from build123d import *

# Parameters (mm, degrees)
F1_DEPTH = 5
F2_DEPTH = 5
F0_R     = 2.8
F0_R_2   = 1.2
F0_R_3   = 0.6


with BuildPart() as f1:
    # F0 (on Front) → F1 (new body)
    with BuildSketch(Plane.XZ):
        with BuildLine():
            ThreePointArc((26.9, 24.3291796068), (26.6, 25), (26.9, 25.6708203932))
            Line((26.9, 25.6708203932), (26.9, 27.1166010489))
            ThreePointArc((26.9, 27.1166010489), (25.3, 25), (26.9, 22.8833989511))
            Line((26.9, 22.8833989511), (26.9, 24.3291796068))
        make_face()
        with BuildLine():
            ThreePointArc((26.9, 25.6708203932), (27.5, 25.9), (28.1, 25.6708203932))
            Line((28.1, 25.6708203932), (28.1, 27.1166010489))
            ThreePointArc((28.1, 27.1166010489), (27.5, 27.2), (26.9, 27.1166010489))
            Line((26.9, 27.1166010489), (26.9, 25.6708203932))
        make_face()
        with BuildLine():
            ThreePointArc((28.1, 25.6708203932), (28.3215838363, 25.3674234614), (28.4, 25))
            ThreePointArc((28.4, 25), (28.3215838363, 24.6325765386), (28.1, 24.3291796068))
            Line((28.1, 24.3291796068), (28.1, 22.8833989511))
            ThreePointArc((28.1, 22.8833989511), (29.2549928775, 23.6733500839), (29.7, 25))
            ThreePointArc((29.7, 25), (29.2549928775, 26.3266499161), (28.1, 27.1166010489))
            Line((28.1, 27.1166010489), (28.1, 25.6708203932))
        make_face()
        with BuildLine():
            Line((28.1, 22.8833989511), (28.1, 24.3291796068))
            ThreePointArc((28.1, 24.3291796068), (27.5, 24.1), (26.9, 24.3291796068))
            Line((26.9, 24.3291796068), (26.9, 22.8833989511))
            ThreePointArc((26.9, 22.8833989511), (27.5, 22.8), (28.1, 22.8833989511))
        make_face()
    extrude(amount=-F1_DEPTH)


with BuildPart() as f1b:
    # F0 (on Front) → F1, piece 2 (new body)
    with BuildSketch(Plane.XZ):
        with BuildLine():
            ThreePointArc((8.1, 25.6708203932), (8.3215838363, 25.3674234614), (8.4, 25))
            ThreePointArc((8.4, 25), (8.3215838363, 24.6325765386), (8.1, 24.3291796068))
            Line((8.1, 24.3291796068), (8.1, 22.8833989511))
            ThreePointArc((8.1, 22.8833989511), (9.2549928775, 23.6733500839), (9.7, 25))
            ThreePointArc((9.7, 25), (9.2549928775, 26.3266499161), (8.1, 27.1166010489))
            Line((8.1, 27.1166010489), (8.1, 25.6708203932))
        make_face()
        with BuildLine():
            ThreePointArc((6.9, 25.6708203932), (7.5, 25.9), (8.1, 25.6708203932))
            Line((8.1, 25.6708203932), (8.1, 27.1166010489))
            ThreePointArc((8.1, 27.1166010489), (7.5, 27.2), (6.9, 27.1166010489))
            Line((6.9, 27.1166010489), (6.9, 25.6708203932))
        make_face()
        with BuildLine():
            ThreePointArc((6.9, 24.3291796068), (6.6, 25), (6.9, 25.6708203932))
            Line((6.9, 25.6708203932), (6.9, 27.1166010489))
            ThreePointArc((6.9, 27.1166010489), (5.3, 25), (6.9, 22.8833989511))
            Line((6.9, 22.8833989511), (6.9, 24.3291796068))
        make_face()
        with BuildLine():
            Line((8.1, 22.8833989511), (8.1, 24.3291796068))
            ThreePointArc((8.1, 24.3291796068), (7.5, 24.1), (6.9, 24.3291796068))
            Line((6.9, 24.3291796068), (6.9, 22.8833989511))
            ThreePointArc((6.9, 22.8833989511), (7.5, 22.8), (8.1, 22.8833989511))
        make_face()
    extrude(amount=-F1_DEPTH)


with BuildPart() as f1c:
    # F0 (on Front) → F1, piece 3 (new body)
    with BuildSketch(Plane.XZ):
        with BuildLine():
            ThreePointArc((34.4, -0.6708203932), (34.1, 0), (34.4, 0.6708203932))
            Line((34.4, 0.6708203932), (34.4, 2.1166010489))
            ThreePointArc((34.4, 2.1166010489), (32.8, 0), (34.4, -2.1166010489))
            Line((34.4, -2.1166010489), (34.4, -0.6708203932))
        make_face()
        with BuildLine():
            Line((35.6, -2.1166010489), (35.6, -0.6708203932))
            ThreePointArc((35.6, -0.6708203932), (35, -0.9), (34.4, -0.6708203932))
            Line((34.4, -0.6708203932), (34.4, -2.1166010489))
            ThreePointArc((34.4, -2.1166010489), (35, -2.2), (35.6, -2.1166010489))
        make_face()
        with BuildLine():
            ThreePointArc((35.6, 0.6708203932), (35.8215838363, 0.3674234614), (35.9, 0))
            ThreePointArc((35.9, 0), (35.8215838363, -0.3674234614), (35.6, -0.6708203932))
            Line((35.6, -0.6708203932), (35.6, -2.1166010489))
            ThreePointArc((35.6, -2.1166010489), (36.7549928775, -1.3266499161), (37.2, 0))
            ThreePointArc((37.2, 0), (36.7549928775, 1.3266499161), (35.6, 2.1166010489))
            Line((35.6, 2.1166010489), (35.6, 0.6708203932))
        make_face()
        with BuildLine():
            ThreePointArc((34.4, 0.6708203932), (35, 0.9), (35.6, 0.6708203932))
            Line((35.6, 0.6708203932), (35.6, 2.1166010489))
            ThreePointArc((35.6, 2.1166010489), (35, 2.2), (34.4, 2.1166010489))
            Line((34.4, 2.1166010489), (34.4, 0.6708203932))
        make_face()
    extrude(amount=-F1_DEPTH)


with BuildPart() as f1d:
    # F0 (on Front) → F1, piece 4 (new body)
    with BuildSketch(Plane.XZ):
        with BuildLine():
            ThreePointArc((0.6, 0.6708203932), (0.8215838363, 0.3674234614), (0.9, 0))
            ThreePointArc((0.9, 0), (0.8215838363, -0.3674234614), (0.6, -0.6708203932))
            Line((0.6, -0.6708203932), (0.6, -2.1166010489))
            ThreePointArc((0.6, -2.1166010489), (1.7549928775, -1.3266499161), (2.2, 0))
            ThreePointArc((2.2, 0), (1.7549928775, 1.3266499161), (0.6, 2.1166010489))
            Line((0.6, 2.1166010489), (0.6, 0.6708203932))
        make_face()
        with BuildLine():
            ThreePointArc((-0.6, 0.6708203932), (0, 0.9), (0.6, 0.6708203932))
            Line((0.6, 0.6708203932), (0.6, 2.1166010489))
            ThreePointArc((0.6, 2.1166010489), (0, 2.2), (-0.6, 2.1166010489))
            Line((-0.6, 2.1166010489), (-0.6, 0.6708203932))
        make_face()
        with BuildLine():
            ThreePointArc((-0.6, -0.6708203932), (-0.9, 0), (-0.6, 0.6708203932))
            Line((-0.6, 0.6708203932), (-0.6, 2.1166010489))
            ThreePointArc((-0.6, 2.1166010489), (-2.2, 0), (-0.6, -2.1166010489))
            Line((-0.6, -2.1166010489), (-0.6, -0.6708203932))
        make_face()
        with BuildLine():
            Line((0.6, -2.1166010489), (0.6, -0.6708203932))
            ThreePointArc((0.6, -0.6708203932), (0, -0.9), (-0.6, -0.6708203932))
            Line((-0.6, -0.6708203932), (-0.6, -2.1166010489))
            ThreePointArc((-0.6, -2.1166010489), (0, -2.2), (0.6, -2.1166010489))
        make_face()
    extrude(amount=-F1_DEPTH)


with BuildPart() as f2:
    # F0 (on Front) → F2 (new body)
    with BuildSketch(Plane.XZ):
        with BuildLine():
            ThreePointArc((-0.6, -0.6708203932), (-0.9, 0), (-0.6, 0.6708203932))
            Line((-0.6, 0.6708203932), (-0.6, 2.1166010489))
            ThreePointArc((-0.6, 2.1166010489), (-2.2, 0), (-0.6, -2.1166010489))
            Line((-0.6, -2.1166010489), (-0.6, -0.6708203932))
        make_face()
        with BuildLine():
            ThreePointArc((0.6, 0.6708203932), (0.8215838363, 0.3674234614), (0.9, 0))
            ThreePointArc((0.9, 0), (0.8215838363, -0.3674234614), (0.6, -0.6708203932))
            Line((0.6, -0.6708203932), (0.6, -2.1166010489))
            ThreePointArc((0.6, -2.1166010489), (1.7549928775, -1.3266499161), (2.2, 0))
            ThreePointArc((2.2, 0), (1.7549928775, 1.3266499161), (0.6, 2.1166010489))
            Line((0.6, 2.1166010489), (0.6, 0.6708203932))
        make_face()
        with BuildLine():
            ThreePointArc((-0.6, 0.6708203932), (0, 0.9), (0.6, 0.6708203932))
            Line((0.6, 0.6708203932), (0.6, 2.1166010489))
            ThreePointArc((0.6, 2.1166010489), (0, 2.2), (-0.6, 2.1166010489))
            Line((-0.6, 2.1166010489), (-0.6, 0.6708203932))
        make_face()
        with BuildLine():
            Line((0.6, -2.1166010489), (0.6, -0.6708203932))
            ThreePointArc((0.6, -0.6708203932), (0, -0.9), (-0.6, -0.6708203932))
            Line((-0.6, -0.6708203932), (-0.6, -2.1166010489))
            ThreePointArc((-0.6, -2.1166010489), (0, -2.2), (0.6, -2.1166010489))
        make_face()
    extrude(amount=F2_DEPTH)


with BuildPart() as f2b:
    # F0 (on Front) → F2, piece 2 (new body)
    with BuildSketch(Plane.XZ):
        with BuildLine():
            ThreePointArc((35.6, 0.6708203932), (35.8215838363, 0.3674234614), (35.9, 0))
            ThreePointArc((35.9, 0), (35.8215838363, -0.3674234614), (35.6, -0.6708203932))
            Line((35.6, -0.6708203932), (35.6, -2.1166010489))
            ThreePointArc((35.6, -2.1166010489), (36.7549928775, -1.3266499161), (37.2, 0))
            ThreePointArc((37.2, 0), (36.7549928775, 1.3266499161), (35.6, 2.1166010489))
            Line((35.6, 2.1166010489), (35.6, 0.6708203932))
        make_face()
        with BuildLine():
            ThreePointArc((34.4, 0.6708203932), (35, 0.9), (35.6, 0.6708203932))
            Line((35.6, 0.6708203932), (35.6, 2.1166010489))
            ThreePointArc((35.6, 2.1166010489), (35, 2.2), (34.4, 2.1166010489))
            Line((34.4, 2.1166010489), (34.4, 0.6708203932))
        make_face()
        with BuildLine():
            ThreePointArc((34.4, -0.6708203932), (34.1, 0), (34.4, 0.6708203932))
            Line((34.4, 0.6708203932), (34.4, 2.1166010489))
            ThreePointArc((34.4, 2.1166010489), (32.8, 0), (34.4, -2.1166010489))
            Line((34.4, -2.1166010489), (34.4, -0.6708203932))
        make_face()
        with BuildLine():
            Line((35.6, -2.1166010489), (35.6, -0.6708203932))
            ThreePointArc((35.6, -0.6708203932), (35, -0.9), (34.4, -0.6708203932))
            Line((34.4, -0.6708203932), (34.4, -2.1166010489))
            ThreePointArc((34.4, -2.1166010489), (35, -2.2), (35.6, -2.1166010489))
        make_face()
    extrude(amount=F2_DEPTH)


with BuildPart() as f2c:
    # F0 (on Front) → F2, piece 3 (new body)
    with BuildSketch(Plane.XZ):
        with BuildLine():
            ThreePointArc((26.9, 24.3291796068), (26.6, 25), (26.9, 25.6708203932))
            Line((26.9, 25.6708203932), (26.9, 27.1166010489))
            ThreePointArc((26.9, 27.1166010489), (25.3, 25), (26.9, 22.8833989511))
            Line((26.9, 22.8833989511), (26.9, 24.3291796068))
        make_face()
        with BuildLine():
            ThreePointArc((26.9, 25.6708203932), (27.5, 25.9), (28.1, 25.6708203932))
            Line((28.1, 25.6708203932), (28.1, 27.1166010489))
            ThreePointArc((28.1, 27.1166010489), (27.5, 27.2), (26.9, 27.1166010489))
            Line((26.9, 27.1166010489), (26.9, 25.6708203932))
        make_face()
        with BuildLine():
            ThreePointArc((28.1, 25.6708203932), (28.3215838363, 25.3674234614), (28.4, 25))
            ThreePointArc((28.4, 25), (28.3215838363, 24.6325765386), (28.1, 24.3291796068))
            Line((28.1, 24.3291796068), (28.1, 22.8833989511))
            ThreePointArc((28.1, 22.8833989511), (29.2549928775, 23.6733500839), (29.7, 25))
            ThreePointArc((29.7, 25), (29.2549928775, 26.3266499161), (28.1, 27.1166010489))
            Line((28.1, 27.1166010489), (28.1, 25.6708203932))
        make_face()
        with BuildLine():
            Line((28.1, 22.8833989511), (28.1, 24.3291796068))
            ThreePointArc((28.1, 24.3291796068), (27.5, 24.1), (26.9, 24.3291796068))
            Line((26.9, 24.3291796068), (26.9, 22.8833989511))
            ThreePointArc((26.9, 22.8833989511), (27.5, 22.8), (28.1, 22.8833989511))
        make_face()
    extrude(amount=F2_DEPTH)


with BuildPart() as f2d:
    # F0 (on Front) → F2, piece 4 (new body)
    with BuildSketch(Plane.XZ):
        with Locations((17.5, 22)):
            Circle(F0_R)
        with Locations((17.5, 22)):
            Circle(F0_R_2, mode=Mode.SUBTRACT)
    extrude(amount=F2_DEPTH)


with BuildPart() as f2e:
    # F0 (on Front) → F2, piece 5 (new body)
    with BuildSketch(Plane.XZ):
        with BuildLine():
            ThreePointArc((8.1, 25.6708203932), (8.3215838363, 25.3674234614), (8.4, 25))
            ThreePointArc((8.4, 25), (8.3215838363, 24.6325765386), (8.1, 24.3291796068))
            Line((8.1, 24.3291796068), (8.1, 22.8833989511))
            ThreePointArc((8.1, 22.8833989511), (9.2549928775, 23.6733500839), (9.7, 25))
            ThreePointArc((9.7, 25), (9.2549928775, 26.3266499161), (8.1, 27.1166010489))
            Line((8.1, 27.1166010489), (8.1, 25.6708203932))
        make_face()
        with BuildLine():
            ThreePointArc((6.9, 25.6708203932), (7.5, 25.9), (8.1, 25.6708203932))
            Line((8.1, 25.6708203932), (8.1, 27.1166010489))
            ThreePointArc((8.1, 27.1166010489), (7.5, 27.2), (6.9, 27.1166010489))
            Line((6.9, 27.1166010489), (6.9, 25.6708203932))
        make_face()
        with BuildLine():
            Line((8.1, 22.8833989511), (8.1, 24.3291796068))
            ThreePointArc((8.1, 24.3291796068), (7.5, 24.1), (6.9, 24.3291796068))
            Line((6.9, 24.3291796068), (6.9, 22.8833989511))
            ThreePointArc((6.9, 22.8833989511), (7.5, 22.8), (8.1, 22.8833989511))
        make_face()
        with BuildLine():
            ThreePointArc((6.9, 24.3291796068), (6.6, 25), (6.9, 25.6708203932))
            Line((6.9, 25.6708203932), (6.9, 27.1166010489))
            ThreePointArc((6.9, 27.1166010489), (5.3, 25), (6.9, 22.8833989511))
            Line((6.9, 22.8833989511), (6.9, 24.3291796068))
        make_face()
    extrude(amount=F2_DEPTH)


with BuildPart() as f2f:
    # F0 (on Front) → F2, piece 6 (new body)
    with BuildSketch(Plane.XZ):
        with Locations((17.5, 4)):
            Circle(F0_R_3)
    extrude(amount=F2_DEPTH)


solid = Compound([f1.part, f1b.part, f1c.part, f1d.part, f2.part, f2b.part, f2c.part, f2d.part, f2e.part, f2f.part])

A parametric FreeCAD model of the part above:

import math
import FreeCAD as App
import Part
import Sketcher

V = App.Vector

doc = App.newDocument("Part")
params = doc.addObject("Spreadsheet::Sheet", "Params")
for row, (alias, value) in enumerate([
    ("sketch1_radius", "2.2 mm"),
    ("sketch1_radius2", "0.9 mm"),
    ("pad1_length", "5 mm"),
    ("sketch2_radius", "2.2 mm"),
    ("sketch2_radius2", "0.9 mm"),
    ("pad2_length", "5 mm"),
    ("sketch3_radius", "2.2 mm"),
    ("sketch3_radius2", "0.9 mm"),
    ("pad3_length", "5 mm"),
    ("sketch4_radius", "2.2 mm"),
    ("sketch4_radius2", "0.9 mm"),
    ("pad4_length", "5 mm"),
    ("sketch5_radius", "2.2 mm"),
    ("sketch5_radius2", "0.9 mm"),
    ("pad5_length", "5 mm"),
    ("sketch6_radius", "2.2 mm"),
    ("sketch6_radius2", "0.9 mm"),
    ("pad6_length", "5 mm"),
    ("sketch7_radius", "2.2 mm"),
    ("sketch7_radius2", "0.9 mm"),
    ("pad7_length", "5 mm"),
    ("sketch8_diameter", "5.6 mm"),
    ("sketch8_diameter2", "2.4 mm"),
    ("pad8_length", "5 mm"),
    ("sketch9_radius", "2.2 mm"),
    ("sketch9_radius2", "0.9 mm"),
    ("pad9_length", "5 mm"),
    ("sketch10_diameter", "1.2 mm"),
    ("pad10_length", "5 mm"),
], start=1):
    params.set(f"A{row}", alias)
    params.set(f"B{row}", "=" + value)
    params.setAlias(f"B{row}", alias)

body = doc.addObject("PartDesign::Body", "Body")

# Sketch on XZ plane
sketch1 = body.newObject("Sketcher::SketchObject", "Sketch")
sketch1.AttachmentSupport = (doc.getObject("XZ_Plane"), [""])
sketch1.MapMode = "FlatFace"
sketch1.addGeometry(Part.ArcOfCircle(Part.Circle(V(27.5, 25, 0), V(0, 0, 1), 2.2), math.radians(-74.17338), math.radians(0)), False)
sketch1.addGeometry(Part.ArcOfCircle(Part.Circle(V(27.5, 25, 0), V(0, 0, 1), 2.2), math.radians(0), math.radians(74.17338)), False)
sketch1.addGeometry(Part.ArcOfCircle(Part.Circle(V(27.5, 25, 0), V(0, 0, 1), 2.2), math.radians(74.17338), math.radians(105.82662)), False)
sketch1.addGeometry(Part.ArcOfCircle(Part.Circle(V(27.5, 25, 0), V(0, 0, 1), 2.2), math.radians(105.82662), math.radians(254.17338)), False)
sketch1.addGeometry(Part.ArcOfCircle(Part.Circle(V(27.5, 25, 0), V(0, 0, 1), 2.2), math.radians(-105.82662), math.radians(-74.17338)), False)
sketch1.addGeometry(Part.ArcOfCircle(Part.Circle(V(27.5, 25, 0), V(0, 0, 1), 0.9), math.radians(131.810315), math.radians(228.189685)), False)
sketch1.addGeometry(Part.ArcOfCircle(Part.Circle(V(27.5, 25, 0), V(0, 0, 1), 0.9), math.radians(48.189685), math.radians(131.810315)), False)
sketch1.addGeometry(Part.ArcOfCircle(Part.Circle(V(27.5, 25, 0), V(0, 0, 1), 0.9), math.radians(0), math.radians(48.189685)), False)
sketch1.addGeometry(Part.ArcOfCircle(Part.Circle(V(27.5, 25, 0), V(0, 0, 1), 0.9), math.radians(-48.189685), math.radians(0)), False)
sketch1.addGeometry(Part.ArcOfCircle(Part.Circle(V(27.5, 25, 0), V(0, 0, 1), 0.9), math.radians(-131.810315), math.radians(-48.189685)), False)
sketch1.addConstraint(Sketcher.Constraint("Tangent", 0, 2, 1, 1))
sketch1.addConstraint(Sketcher.Constraint("Tangent", 1, 2, 2, 1))
sketch1.addConstraint(Sketcher.Constraint("Tangent", 2, 2, 3, 1))
sketch1.addConstraint(Sketcher.Constraint("Tangent", 3, 2, 4, 1))
sketch1.addConstraint(Sketcher.Constraint("Tangent", 4, 2, 0, 1))
sketch1.addConstraint(Sketcher.Constraint("Tangent", 5, 1, 6, 2))
sketch1.addConstraint(Sketcher.Constraint("Tangent", 6, 1, 7, 2))
sketch1.addConstraint(Sketcher.Constraint("Tangent", 7, 1, 8, 2))
sketch1.addConstraint(Sketcher.Constraint("Tangent", 8, 1, 9, 2))
sketch1.addConstraint(Sketcher.Constraint("Tangent", 9, 1, 5, 2))
sketch1.addConstraint(Sketcher.Constraint("Coincident", 2, 3, 0, 3))
sketch1.addConstraint(Sketcher.Constraint("Coincident", 5, 3, 0, 3))
sketch1.addConstraint(Sketcher.Constraint("Coincident", 7, 3, 0, 3))
sketch1.addConstraint(Sketcher.Constraint("Horizontal", 9, 3, 0, 2))
sketch1.addConstraint(Sketcher.Constraint("Horizontal", 1, 2, 2, 2))
sketch1.addConstraint(Sketcher.Constraint("Horizontal", 3, 2, 4, 2))
sketch1.addConstraint(Sketcher.Constraint("Horizontal", 5, 1, 6, 1))
sketch1.addConstraint(Sketcher.Constraint("Horizontal", 0, 2, 7, 1))
sketch1.addConstraint(Sketcher.Constraint("Horizontal", 8, 1, 9, 1))
sketch1.addConstraint(Sketcher.Constraint("Vertical", 2, 2, 3, 2))
sketch1.addConstraint(Sketcher.Constraint("Vertical", 3, 2, 5, 1))
sketch1.addConstraint(Sketcher.Constraint("Vertical", 6, 1, 8, 1))
sketch1.addConstraint(Sketcher.Constraint("Radius", 0, 2.2))
sketch1.addConstraint(Sketcher.Constraint("Radius", 5, 0.9))
sketch1.addConstraint(Sketcher.Constraint("DistanceY", -1, 1, 0, 3, 25.0))
sketch1.addConstraint(Sketcher.Constraint("DistanceX", -1, 1, 0, 3, 27.5))
sketch1.addConstraint(Sketcher.Constraint("DistanceX", -1, 1, 1, 2, 28.1))
sketch1.setExpression("Constraints[22]", "Params.sketch1_radius")
sketch1.setExpression("Constraints[23]", "Params.sketch1_radius2")
pad1 = body.newObject("PartDesign::Pad", "Pad")
pad1.Profile = sketch1
pad1.setExpression("Length", "Params.pad1_length")
pad1.Reversed = True
body2 = doc.addObject("PartDesign::Body", "Body001")

# Sketch on XZ plane
sketch2 = body2.newObject("Sketcher::SketchObject", "Sketch001")
sketch2.AttachmentSupport = (doc.getObject("XZ_Plane001"), [""])
sketch2.MapMode = "FlatFace"
sketch2.addGeometry(Part.ArcOfCircle(Part.Circle(V(7.5, 25, 0), V(0, 0, 1), 2.2), math.radians(-74.17338), math.radians(0)), False)
sketch2.addGeometry(Part.ArcOfCircle(Part.Circle(V(7.5, 25, 0), V(0, 0, 1), 2.2), math.radians(0), math.radians(74.17338)), False)
sketch2.addGeometry(Part.ArcOfCircle(Part.Circle(V(7.5, 25, 0), V(0, 0, 1), 2.2), math.radians(74.17338), math.radians(105.82662)), False)
sketch2.addGeometry(Part.ArcOfCircle(Part.Circle(V(7.5, 25, 0), V(0, 0, 1), 2.2), math.radians(105.82662), math.radians(254.17338)), False)
sketch2.addGeometry(Part.ArcOfCircle(Part.Circle(V(7.5, 25, 0), V(0, 0, 1), 2.2), math.radians(-105.82662), math.radians(-74.17338)), False)
sketch2.addGeometry(Part.ArcOfCircle(Part.Circle(V(7.5, 25, 0), V(0, 0, 1), 0.9), math.radians(0), math.radians(48.189685)), False)
sketch2.addGeometry(Part.ArcOfCircle(Part.Circle(V(7.5, 25, 0), V(0, 0, 1), 0.9), math.radians(-48.189685), math.radians(0)), False)
sketch2.addGeometry(Part.ArcOfCircle(Part.Circle(V(7.5, 25, 0), V(0, 0, 1), 0.9), math.radians(-131.810315), math.radians(-48.189685)), False)
sketch2.addGeometry(Part.ArcOfCircle(Part.Circle(V(7.5, 25, 0), V(0, 0, 1), 0.9), math.radians(131.810315), math.radians(228.189685)), False)
sketch2.addGeometry(Part.ArcOfCircle(Part.Circle(V(7.5, 25, 0), V(0, 0, 1), 0.9), math.radians(48.189685), math.radians(131.810315)), False)
sketch2.addConstraint(Sketcher.Constraint("Tangent", 0, 2, 1, 1))
sketch2.addConstraint(Sketcher.Constraint("Tangent", 1, 2, 2, 1))
sketch2.addConstraint(Sketcher.Constraint("Tangent", 2, 2, 3, 1))
sketch2.addConstraint(Sketcher.Constraint("Tangent", 3, 2, 4, 1))
sketch2.addConstraint(Sketcher.Constraint("Tangent", 4, 2, 0, 1))
sketch2.addConstraint(Sketcher.Constraint("Tangent", 5, 1, 6, 2))
sketch2.addConstraint(Sketcher.Constraint("Tangent", 6, 1, 7, 2))
sketch2.addConstraint(Sketcher.Constraint("Tangent", 7, 1, 8, 2))
sketch2.addConstraint(Sketcher.Constraint("Tangent", 8, 1, 9, 2))
sketch2.addConstraint(Sketcher.Constraint("Tangent", 9, 1, 5, 2))
sketch2.addConstraint(Sketcher.Constraint("Coincident", 2, 3, 0, 3))
sketch2.addConstraint(Sketcher.Constraint("Coincident", 5, 3, 0, 3))
sketch2.addConstraint(Sketcher.Constraint("Coincident", 7, 3, 0, 3))
sketch2.addConstraint(Sketcher.Constraint("Horizontal", 9, 3, 0, 2))
sketch2.addConstraint(Sketcher.Constraint("Horizontal", 1, 2, 2, 2))
sketch2.addConstraint(Sketcher.Constraint("Horizontal", 3, 2, 4, 2))
sketch2.addConstraint(Sketcher.Constraint("Horizontal", 0, 2, 5, 1))
sketch2.addConstraint(Sketcher.Constraint("Horizontal", 6, 1, 7, 1))
sketch2.addConstraint(Sketcher.Constraint("Horizontal", 8, 1, 9, 1))
sketch2.addConstraint(Sketcher.Constraint("Vertical", 2, 2, 3, 2))
sketch2.addConstraint(Sketcher.Constraint("Vertical", 4, 2, 6, 1))
sketch2.addConstraint(Sketcher.Constraint("Vertical", 7, 1, 8, 1))
sketch2.addConstraint(Sketcher.Constraint("Radius", 0, 2.2))
sketch2.addConstraint(Sketcher.Constraint("Radius", 5, 0.9))
sketch2.addConstraint(Sketcher.Constraint("DistanceY", -1, 1, 0, 3, 25.0))
sketch2.addConstraint(Sketcher.Constraint("DistanceX", -1, 1, 0, 3, 7.5))
sketch2.addConstraint(Sketcher.Constraint("DistanceX", -1, 1, 1, 2, 8.1))
sketch2.setExpression("Constraints[22]", "Params.sketch2_radius")
sketch2.setExpression("Constraints[23]", "Params.sketch2_radius2")
pad2 = body2.newObject("PartDesign::Pad", "Pad001")
pad2.Profile = sketch2
pad2.setExpression("Length", "Params.pad2_length")
pad2.Reversed = True
body3 = doc.addObject("PartDesign::Body", "Body002")

# Sketch on XZ plane
sketch3 = body3.newObject("Sketcher::SketchObject", "Sketch002")
sketch3.AttachmentSupport = (doc.getObject("XZ_Plane002"), [""])
sketch3.MapMode = "FlatFace"
sketch3.addGeometry(Part.ArcOfCircle(Part.Circle(V(35, 0, 0), V(0, 0, 1), 2.2), math.radians(105.82662), math.radians(254.17338)), False)
sketch3.addGeometry(Part.ArcOfCircle(Part.Circle(V(35, 0, 0), V(0, 0, 1), 2.2), math.radians(-105.82662), math.radians(-74.17338)), False)
sketch3.addGeometry(Part.ArcOfCircle(Part.Circle(V(35, 0, 0), V(0, 0, 1), 2.2), math.radians(-74.17338), math.radians(0)), False)
sketch3.addGeometry(Part.ArcOfCircle(Part.Circle(V(35, 0, 0), V(0, 0, 1), 2.2), math.radians(0), math.radians(74.17338)), False)
sketch3.addGeometry(Part.ArcOfCircle(Part.Circle(V(35, 0, 0), V(0, 0, 1), 2.2), math.radians(74.17338), math.radians(105.82662)), False)
sketch3.addGeometry(Part.ArcOfCircle(Part.Circle(V(35, 0, 0), V(0, 0, 1), 0.9), math.radians(131.810315), math.radians(228.189685)), False)
sketch3.addGeometry(Part.ArcOfCircle(Part.Circle(V(35, 0, 0), V(0, 0, 1), 0.9), math.radians(48.189685), math.radians(131.810315)), False)
sketch3.addGeometry(Part.ArcOfCircle(Part.Circle(V(35, 0, 0), V(0, 0, 1), 0.9), math.radians(0), math.radians(48.189685)), False)
sketch3.addGeometry(Part.ArcOfCircle(Part.Circle(V(35, 0, 0), V(0, 0, 1), 0.9), math.radians(-48.189685), math.radians(0)), False)
sketch3.addGeometry(Part.ArcOfCircle(Part.Circle(V(35, 0, 0), V(0, 0, 1), 0.9), math.radians(-131.810315), math.radians(-48.189685)), False)
sketch3.addConstraint(Sketcher.Constraint("Tangent", 0, 2, 1, 1))
sketch3.addConstraint(Sketcher.Constraint("Tangent", 1, 2, 2, 1))
sketch3.addConstraint(Sketcher.Constraint("Tangent", 2, 2, 3, 1))
sketch3.addConstraint(Sketcher.Constraint("Tangent", 3, 2, 4, 1))
sketch3.addConstraint(Sketcher.Constraint("Tangent", 4, 2, 0, 1))
sketch3.addConstraint(Sketcher.Constraint("Tangent", 5, 1, 6, 2))
sketch3.addConstraint(Sketcher.Constraint("Tangent", 6, 1, 7, 2))
sketch3.addConstraint(Sketcher.Constraint("Tangent", 7, 1, 8, 2))
sketch3.addConstraint(Sketcher.Constraint("Tangent", 8, 1, 9, 2))
sketch3.addConstraint(Sketcher.Constraint("Tangent", 9, 1, 5, 2))
sketch3.addConstraint(Sketcher.Constraint("Coincident", 2, 3, 0, 3))
sketch3.addConstraint(Sketcher.Constraint("Coincident", 5, 3, 0, 3))
sketch3.addConstraint(Sketcher.Constraint("Coincident", 7, 3, 0, 3))
sketch3.addConstraint(Sketcher.Constraint("Symmetric", 1, 2, 3, 2, -1))
sketch3.addConstraint(Sketcher.Constraint("PointOnObject", 2, 2, -1))
sketch3.addConstraint(Sketcher.Constraint("PointOnObject", 7, 1, -1))
sketch3.addConstraint(Sketcher.Constraint("Horizontal", 0, 2, 1, 2))
sketch3.addConstraint(Sketcher.Constraint("Horizontal", 3, 2, 4, 2))
sketch3.addConstraint(Sketcher.Constraint("Horizontal", 5, 1, 6, 1))
sketch3.addConstraint(Sketcher.Constraint("Horizontal", 8, 1, 9, 1))
sketch3.addConstraint(Sketcher.Constraint("Vertical", 4, 2, 5, 1))
sketch3.addConstraint(Sketcher.Constraint("Vertical", 6, 1, 8, 1))
sketch3.addConstraint(Sketcher.Constraint("Radius", 0, 2.2))
sketch3.addConstraint(Sketcher.Constraint("Radius", 5, 0.9))
sketch3.addConstraint(Sketcher.Constraint("DistanceX", -1, 1, 0, 3, 35.0))
sketch3.addConstraint(Sketcher.Constraint("DistanceX", -1, 1, 0, 2, 34.4))
sketch3.setExpression("Constraints[22]", "Params.sketch3_radius")
sketch3.setExpression("Constraints[23]", "Params.sketch3_radius2")
pad3 = body3.newObject("PartDesign::Pad", "Pad002")
pad3.Profile = sketch3
pad3.setExpression("Length", "Params.pad3_length")
pad3.Reversed = True
body4 = doc.addObject("PartDesign::Body", "Body003")

# Sketch on XZ plane
sketch4 = body4.newObject("Sketcher::SketchObject", "Sketch003")
sketch4.AttachmentSupport = (doc.getObject("XZ_Plane003"), [""])
sketch4.MapMode = "FlatFace"
sketch4.addGeometry(Part.ArcOfCircle(Part.Circle(V(0, 0, 0), V(0, 0, 1), 2.2), math.radians(-74.17338), math.radians(0)), False)
sketch4.addGeometry(Part.ArcOfCircle(Part.Circle(V(0, 0, 0), V(0, 0, 1), 2.2), math.radians(0), math.radians(74.17338)), False)
sketch4.addGeometry(Part.ArcOfCircle(Part.Circle(V(0, 0, 0), V(0, 0, 1), 2.2), math.radians(74.17338), math.radians(105.82662)), False)
sketch4.addGeometry(Part.ArcOfCircle(Part.Circle(V(0, 0, 0), V(0, 0, 1), 2.2), math.radians(105.82662), math.radians(254.17338)), False)
sketch4.addGeometry(Part.ArcOfCircle(Part.Circle(V(0, 0, 0), V(0, 0, 1), 2.2), math.radians(-105.82662), math.radians(-74.17338)), False)
sketch4.addGeometry(Part.ArcOfCircle(Part.Circle(V(0, 0, 0), V(0, 0, 1), 0.9), math.radians(0), math.radians(48.189685)), False)
sketch4.addGeometry(Part.ArcOfCircle(Part.Circle(V(0, 0, 0), V(0, 0, 1), 0.9), math.radians(-48.189685), math.radians(0)), False)
sketch4.addGeometry(Part.ArcOfCircle(Part.Circle(V(0, 0, 0), V(0, 0, 1), 0.9), math.radians(-131.810315), math.radians(-48.189685)), False)
sketch4.addGeometry(Part.ArcOfCircle(Part.Circle(V(0, 0, 0), V(0, 0, 1), 0.9), math.radians(131.810315), math.radians(228.189685)), False)
sketch4.addGeometry(Part.ArcOfCircle(Part.Circle(V(0, 0, 0), V(0, 0, 1), 0.9), math.radians(48.189685), math.radians(131.810315)), False)
sketch4.addConstraint(Sketcher.Constraint("Tangent", 0, 2, 1, 1))
sketch4.addConstraint(Sketcher.Constraint("Tangent", 1, 2, 2, 1))
sketch4.addConstraint(Sketcher.Constraint("Tangent", 2, 2, 3, 1))
sketch4.addConstraint(Sketcher.Constraint("Tangent", 3, 2, 4, 1))
sketch4.addConstraint(Sketcher.Constraint("Tangent", 4, 2, 0, 1))
sketch4.addConstraint(Sketcher.Constraint("Tangent", 5, 1, 6, 2))
sketch4.addConstraint(Sketcher.Constraint("Tangent", 6, 1, 7, 2))
sketch4.addConstraint(Sketcher.Constraint("Tangent", 7, 1, 8, 2))
sketch4.addConstraint(Sketcher.Constraint("Tangent", 8, 1, 9, 2))
sketch4.addConstraint(Sketcher.Constraint("Tangent", 9, 1, 5, 2))
sketch4.addConstraint(Sketcher.Constraint("Coincident", 0, 3, -1, 1))
sketch4.addConstraint(Sketcher.Constraint("Coincident", 2, 3, -1, 1))
sketch4.addConstraint(Sketcher.Constraint("Coincident", 5, 3, -1, 1))
sketch4.addConstraint(Sketcher.Constraint("Coincident", 7, 3, -1, 1))
sketch4.addConstraint(Sketcher.Constraint("PointOnObject", 0, 2, -1))
sketch4.addConstraint(Sketcher.Constraint("PointOnObject", 5, 1, -1))
sketch4.addConstraint(Sketcher.Constraint("Horizontal", 1, 2, 2, 2))
sketch4.addConstraint(Sketcher.Constraint("Horizontal", 3, 2, 4, 2))
sketch4.addConstraint(Sketcher.Constraint("Horizontal", 6, 1, 7, 1))
sketch4.addConstraint(Sketcher.Constraint("Horizontal", 8, 1, 9, 1))
sketch4.addConstraint(Sketcher.Constraint("Vertical", 2, 2, 3, 2))
sketch4.addConstraint(Sketcher.Constraint("Vertical", 4, 2, 6, 1))
sketch4.addConstraint(Sketcher.Constraint("Vertical", 7, 1, 8, 1))
sketch4.addConstraint(Sketcher.Constraint("Radius", 0, 2.2))
sketch4.addConstraint(Sketcher.Constraint("Radius", 5, 0.9))
sketch4.addConstraint(Sketcher.Constraint("DistanceX", -1, 1, 1, 2, 0.6))
sketch4.setExpression("Constraints[23]", "Params.sketch4_radius")
sketch4.setExpression("Constraints[24]", "Params.sketch4_radius2")
pad4 = body4.newObject("PartDesign::Pad", "Pad003")
pad4.Profile = sketch4
pad4.setExpression("Length", "Params.pad4_length")
pad4.Reversed = True
body5 = doc.addObject("PartDesign::Body", "Body004")

# Sketch on XZ plane
sketch5 = body5.newObject("Sketcher::SketchObject", "Sketch004")
sketch5.AttachmentSupport = (doc.getObject("XZ_Plane004"), [""])
sketch5.MapMode = "FlatFace"
sketch5.addGeometry(Part.ArcOfCircle(Part.Circle(V(0, 0, 0), V(0, 0, 1), 2.2), math.radians(-74.17338), math.radians(0)), False)
sketch5.addGeometry(Part.ArcOfCircle(Part.Circle(V(0, 0, 0), V(0, 0, 1), 2.2), math.radians(0), math.radians(74.17338)), False)
sketch5.addGeometry(Part.ArcOfCircle(Part.Circle(V(0, 0, 0), V(0, 0, 1), 2.2), math.radians(74.17338), math.radians(105.82662)), False)
sketch5.addGeometry(Part.ArcOfCircle(Part.Circle(V(0, 0, 0), V(0, 0, 1), 2.2), math.radians(105.82662), math.radians(254.17338)), False)
sketch5.addGeometry(Part.ArcOfCircle(Part.Circle(V(0, 0, 0), V(0, 0, 1), 2.2), math.radians(-105.82662), math.radians(-74.17338)), False)
sketch5.addGeometry(Part.ArcOfCircle(Part.Circle(V(0, 0, 0), V(0, 0, 1), 0.9), math.radians(131.810315), math.radians(228.189685)), False)
sketch5.addGeometry(Part.ArcOfCircle(Part.Circle(V(0, 0, 0), V(0, 0, 1), 0.9), math.radians(48.189685), math.radians(131.810315)), False)
sketch5.addGeometry(Part.ArcOfCircle(Part.Circle(V(0, 0, 0), V(0, 0, 1), 0.9), math.radians(0), math.radians(48.189685)), False)
sketch5.addGeometry(Part.ArcOfCircle(Part.Circle(V(0, 0, 0), V(0, 0, 1), 0.9), math.radians(-48.189685), math.radians(0)), False)
sketch5.addGeometry(Part.ArcOfCircle(Part.Circle(V(0, 0, 0), V(0, 0, 1), 0.9), math.radians(-131.810315), math.radians(-48.189685)), False)
sketch5.addConstraint(Sketcher.Constraint("Tangent", 0, 2, 1, 1))
sketch5.addConstraint(Sketcher.Constraint("Tangent", 1, 2, 2, 1))
sketch5.addConstraint(Sketcher.Constraint("Tangent", 2, 2, 3, 1))
sketch5.addConstraint(Sketcher.Constraint("Tangent", 3, 2, 4, 1))
sketch5.addConstraint(Sketcher.Constraint("Tangent", 4, 2, 0, 1))
sketch5.addConstraint(Sketcher.Constraint("Tangent", 5, 1, 6, 2))
sketch5.addConstraint(Sketcher.Constraint("Tangent", 6, 1, 7, 2))
sketch5.addConstraint(Sketcher.Constraint("Tangent", 7, 1, 8, 2))
sketch5.addConstraint(Sketcher.Constraint("Tangent", 8, 1, 9, 2))
sketch5.addConstraint(Sketcher.Constraint("Tangent", 9, 1, 5, 2))
sketch5.addConstraint(Sketcher.Constraint("Coincident", 0, 3, -1, 1))
sketch5.addConstraint(Sketcher.Constraint("Coincident", 2, 3, -1, 1))
sketch5.addConstraint(Sketcher.Constraint("Coincident", 5, 3, -1, 1))
sketch5.addConstraint(Sketcher.Constraint("Coincident", 7, 3, -1, 1))
sketch5.addConstraint(Sketcher.Constraint("PointOnObject", 0, 2, -1))
sketch5.addConstraint(Sketcher.Constraint("PointOnObject", 7, 1, -1))
sketch5.addConstraint(Sketcher.Constraint("Horizontal", 1, 2, 2, 2))
sketch5.addConstraint(Sketcher.Constraint("Horizontal", 3, 2, 4, 2))
sketch5.addConstraint(Sketcher.Constraint("Horizontal", 5, 1, 6, 1))
sketch5.addConstraint(Sketcher.Constraint("Horizontal", 8, 1, 9, 1))
sketch5.addConstraint(Sketcher.Constraint("Vertical", 2, 2, 3, 2))
sketch5.addConstraint(Sketcher.Constraint("Vertical", 3, 2, 5, 1))
sketch5.addConstraint(Sketcher.Constraint("Vertical", 6, 1, 8, 1))
sketch5.addConstraint(Sketcher.Constraint("Radius", 0, 2.2))
sketch5.addConstraint(Sketcher.Constraint("Radius", 5, 0.9))
sketch5.addConstraint(Sketcher.Constraint("DistanceX", -1, 1, 1, 2, 0.6))
sketch5.setExpression("Constraints[23]", "Params.sketch5_radius")
sketch5.setExpression("Constraints[24]", "Params.sketch5_radius2")
pad5 = body5.newObject("PartDesign::Pad", "Pad004")
pad5.Profile = sketch5
pad5.setExpression("Length", "Params.pad5_length")
body6 = doc.addObject("PartDesign::Body", "Body005")

# Sketch on XZ plane
sketch6 = body6.newObject("Sketcher::SketchObject", "Sketch005")
sketch6.AttachmentSupport = (doc.getObject("XZ_Plane005"), [""])
sketch6.MapMode = "FlatFace"
sketch6.addGeometry(Part.ArcOfCircle(Part.Circle(V(35, 0, 0), V(0, 0, 1), 2.2), math.radians(-74.17338), math.radians(0)), False)
sketch6.addGeometry(Part.ArcOfCircle(Part.Circle(V(35, 0, 0), V(0, 0, 1), 2.2), math.radians(0), math.radians(74.17338)), False)
sketch6.addGeometry(Part.ArcOfCircle(Part.Circle(V(35, 0, 0), V(0, 0, 1), 2.2), math.radians(74.17338), math.radians(105.82662)), False)
sketch6.addGeometry(Part.ArcOfCircle(Part.Circle(V(35, 0, 0), V(0, 0, 1), 2.2), math.radians(105.82662), math.radians(254.17338)), False)
sketch6.addGeometry(Part.ArcOfCircle(Part.Circle(V(35, 0, 0), V(0, 0, 1), 2.2), math.radians(-105.82662), math.radians(-74.17338)), False)
sketch6.addGeometry(Part.ArcOfCircle(Part.Circle(V(35, 0, 0), V(0, 0, 1), 0.9), math.radians(0), math.radians(48.189685)), False)
sketch6.addGeometry(Part.ArcOfCircle(Part.Circle(V(35, 0, 0), V(0, 0, 1), 0.9), math.radians(-48.189685), math.radians(0)), False)
sketch6.addGeometry(Part.ArcOfCircle(Part.Circle(V(35, 0, 0), V(0, 0, 1), 0.9), math.radians(-131.810315), math.radians(-48.189685)), False)
sketch6.addGeometry(Part.ArcOfCircle(Part.Circle(V(35, 0, 0), V(0, 0, 1), 0.9), math.radians(131.810315), math.radians(228.189685)), False)
sketch6.addGeometry(Part.ArcOfCircle(Part.Circle(V(35, 0, 0), V(0, 0, 1), 0.9), math.radians(48.189685), math.radians(131.810315)), False)
sketch6.addConstraint(Sketcher.Constraint("Tangent", 0, 2, 1, 1))
sketch6.addConstraint(Sketcher.Constraint("Tangent", 1, 2, 2, 1))
sketch6.addConstraint(Sketcher.Constraint("Tangent", 2, 2, 3, 1))
sketch6.addConstraint(Sketcher.Constraint("Tangent", 3, 2, 4, 1))
sketch6.addConstraint(Sketcher.Constraint("Tangent", 4, 2, 0, 1))
sketch6.addConstraint(Sketcher.Constraint("Tangent", 5, 1, 6, 2))
sketch6.addConstraint(Sketcher.Constraint("Tangent", 6, 1, 7, 2))
sketch6.addConstraint(Sketcher.Constraint("Tangent", 7, 1, 8, 2))
sketch6.addConstraint(Sketcher.Constraint("Tangent", 8, 1, 9, 2))
sketch6.addConstraint(Sketcher.Constraint("Tangent", 9, 1, 5, 2))
sketch6.addConstraint(Sketcher.Constraint("Coincident", 2, 3, 0, 3))
sketch6.addConstraint(Sketcher.Constraint("Coincident", 5, 3, 0, 3))
sketch6.addConstraint(Sketcher.Constraint("Coincident", 7, 3, 0, 3))
sketch6.addConstraint(Sketcher.Constraint("Symmetric", 2, 2, 3, 2, -1))
sketch6.addConstraint(Sketcher.Constraint("PointOnObject", 0, 2, -1))
sketch6.addConstraint(Sketcher.Constraint("PointOnObject", 5, 1, -1))
sketch6.addConstraint(Sketcher.Constraint("Horizontal", 1, 2, 2, 2))
sketch6.addConstraint(Sketcher.Constraint("Horizontal", 3, 2, 4, 2))
sketch6.addConstraint(Sketcher.Constraint("Horizontal", 6, 1, 7, 1))
sketch6.addConstraint(Sketcher.Constraint("Horizontal", 8, 1, 9, 1))
sketch6.addConstraint(Sketcher.Constraint("Vertical", 4, 2, 6, 1))
sketch6.addConstraint(Sketcher.Constraint("Vertical", 7, 1, 8, 1))
sketch6.addConstraint(Sketcher.Constraint("Radius", 0, 2.2))
sketch6.addConstraint(Sketcher.Constraint("Radius", 5, 0.9))
sketch6.addConstraint(Sketcher.Constraint("DistanceX", -1, 1, 0, 3, 35.0))
sketch6.addConstraint(Sketcher.Constraint("DistanceX", -1, 1, 1, 2, 35.6))
sketch6.setExpression("Constraints[22]", "Params.sketch6_radius")
sketch6.setExpression("Constraints[23]", "Params.sketch6_radius2")
pad6 = body6.newObject("PartDesign::Pad", "Pad005")
pad6.Profile = sketch6
pad6.setExpression("Length", "Params.pad6_length")
body7 = doc.addObject("PartDesign::Body", "Body006")

# Sketch on XZ plane
sketch7 = body7.newObject("Sketcher::SketchObject", "Sketch006")
sketch7.AttachmentSupport = (doc.getObject("XZ_Plane006"), [""])
sketch7.MapMode = "FlatFace"
sketch7.addGeometry(Part.ArcOfCircle(Part.Circle(V(27.5, 25, 0), V(0, 0, 1), 2.2), math.radians(-74.17338), math.radians(0)), False)
sketch7.addGeometry(Part.ArcOfCircle(Part.Circle(V(27.5, 25, 0), V(0, 0, 1), 2.2), math.radians(0), math.radians(74.17338)), False)
sketch7.addGeometry(Part.ArcOfCircle(Part.Circle(V(27.5, 25, 0), V(0, 0, 1), 2.2), math.radians(74.17338), math.radians(105.82662)), False)
sketch7.addGeometry(Part.ArcOfCircle(Part.Circle(V(27.5, 25, 0), V(0, 0, 1), 2.2), math.radians(105.82662), math.radians(254.17338)), False)
sketch7.addGeometry(Part.ArcOfCircle(Part.Circle(V(27.5, 25, 0), V(0, 0, 1), 2.2), math.radians(-105.82662), math.radians(-74.17338)), False)
sketch7.addGeometry(Part.ArcOfCircle(Part.Circle(V(27.5, 25, 0), V(0, 0, 1), 0.9), math.radians(131.810315), math.radians(228.189685)), False)
sketch7.addGeometry(Part.ArcOfCircle(Part.Circle(V(27.5, 25, 0), V(0, 0, 1), 0.9), math.radians(48.189685), math.radians(131.810315)), False)
sketch7.addGeometry(Part.ArcOfCircle(Part.Circle(V(27.5, 25, 0), V(0, 0, 1), 0.9), math.radians(0), math.radians(48.189685)), False)
sketch7.addGeometry(Part.ArcOfCircle(Part.Circle(V(27.5, 25, 0), V(0, 0, 1), 0.9), math.radians(-48.189685), math.radians(0)), False)
sketch7.addGeometry(Part.ArcOfCircle(Part.Circle(V(27.5, 25, 0), V(0, 0, 1), 0.9), math.radians(-131.810315), math.radians(-48.189685)), False)
sketch7.addConstraint(Sketcher.Constraint("Tangent", 0, 2, 1, 1))
sketch7.addConstraint(Sketcher.Constraint("Tangent", 1, 2, 2, 1))
sketch7.addConstraint(Sketcher.Constraint("Tangent", 2, 2, 3, 1))
sketch7.addConstraint(Sketcher.Constraint("Tangent", 3, 2, 4, 1))
sketch7.addConstraint(Sketcher.Constraint("Tangent", 4, 2, 0, 1))
sketch7.addConstraint(Sketcher.Constraint("Tangent", 5, 1, 6, 2))
sketch7.addConstraint(Sketcher.Constraint("Tangent", 6, 1, 7, 2))
sketch7.addConstraint(Sketcher.Constraint("Tangent", 7, 1, 8, 2))
sketch7.addConstraint(Sketcher.Constraint("Tangent", 8, 1, 9, 2))
sketch7.addConstraint(Sketcher.Constraint("Tangent", 9, 1, 5, 2))
sketch7.addConstraint(Sketcher.Constraint("Coincident", 2, 3, 0, 3))
sketch7.addConstraint(Sketcher.Constraint("Coincident", 5, 3, 0, 3))
sketch7.addConstraint(Sketcher.Constraint("Coincident", 7, 3, 0, 3))
sketch7.addConstraint(Sketcher.Constraint("Horizontal", 9, 3, 0, 2))
sketch7.addConstraint(Sketcher.Constraint("Horizontal", 1, 2, 2, 2))
sketch7.addConstraint(Sketcher.Constraint("Horizontal", 3, 2, 4, 2))
sketch7.addConstraint(Sketcher.Constraint("Horizontal", 5, 1, 6, 1))
sketch7.addConstraint(Sketcher.Constraint("Horizontal", 0, 2, 7, 1))
sketch7.addConstraint(Sketcher.Constraint("Horizontal", 8, 1, 9, 1))
sketch7.addConstraint(Sketcher.Constraint("Vertical", 2, 2, 3, 2))
sketch7.addConstraint(Sketcher.Constraint("Vertical", 3, 2, 5, 1))
sketch7.addConstraint(Sketcher.Constraint("Vertical", 6, 1, 8, 1))
sketch7.addConstraint(Sketcher.Constraint("Radius", 0, 2.2))
sketch7.addConstraint(Sketcher.Constraint("Radius", 5, 0.9))
sketch7.addConstraint(Sketcher.Constraint("DistanceY", -1, 1, 0, 3, 25.0))
sketch7.addConstraint(Sketcher.Constraint("DistanceX", -1, 1, 0, 3, 27.5))
sketch7.addConstraint(Sketcher.Constraint("DistanceX", -1, 1, 1, 2, 28.1))
sketch7.setExpression("Constraints[22]", "Params.sketch7_radius")
sketch7.setExpression("Constraints[23]", "Params.sketch7_radius2")
pad7 = body7.newObject("PartDesign::Pad", "Pad006")
pad7.Profile = sketch7
pad7.setExpression("Length", "Params.pad7_length")
body8 = doc.addObject("PartDesign::Body", "Body007")

# Sketch on XZ plane
sketch8 = body8.newObject("Sketcher::SketchObject", "Sketch007")
sketch8.AttachmentSupport = (doc.getObject("XZ_Plane007"), [""])
sketch8.MapMode = "FlatFace"
sketch8.addGeometry(Part.Circle(V(17.5, 22, 0), V(0, 0, 1), 2.8), False)
sketch8.addGeometry(Part.Circle(V(17.5, 22, 0), V(0, 0, 1), 1.2), False)
sketch8.addConstraint(Sketcher.Constraint("Coincident", 1, 3, 0, 3))
sketch8.addConstraint(Sketcher.Constraint("Diameter", 0, 5.6))
sketch8.addConstraint(Sketcher.Constraint("Diameter", 1, 2.4))
sketch8.addConstraint(Sketcher.Constraint("DistanceY", -1, 1, 0, 3, 22.0))
sketch8.addConstraint(Sketcher.Constraint("DistanceX", -1, 1, 0, 3, 17.5))
sketch8.setExpression("Constraints[1]", "Params.sketch8_diameter")
sketch8.setExpression("Constraints[2]", "Params.sketch8_diameter2")
pad8 = body8.newObject("PartDesign::Pad", "Pad007")
pad8.Profile = sketch8
pad8.setExpression("Length", "Params.pad8_length")
body9 = doc.addObject("PartDesign::Body", "Body008")

# Sketch on XZ plane
sketch9 = body9.newObject("Sketcher::SketchObject", "Sketch008")
sketch9.AttachmentSupport = (doc.getObject("XZ_Plane008"), [""])
sketch9.MapMode = "FlatFace"
sketch9.addGeometry(Part.ArcOfCircle(Part.Circle(V(7.5, 25, 0), V(0, 0, 1), 2.2), math.radians(-105.82662), math.radians(-74.17338)), False)
sketch9.addGeometry(Part.ArcOfCircle(Part.Circle(V(7.5, 25, 0), V(0, 0, 1), 2.2), math.radians(-74.17338), math.radians(0)), False)
sketch9.addGeometry(Part.ArcOfCircle(Part.Circle(V(7.5, 25, 0), V(0, 0, 1), 2.2), math.radians(0), math.radians(74.17338)), False)
sketch9.addGeometry(Part.ArcOfCircle(Part.Circle(V(7.5, 25, 0), V(0, 0, 1), 2.2), math.radians(74.17338), math.radians(105.82662)), False)
sketch9.addGeometry(Part.ArcOfCircle(Part.Circle(V(7.5, 25, 0), V(0, 0, 1), 2.2), math.radians(105.82662), math.radians(254.17338)), False)
sketch9.addGeometry(Part.ArcOfCircle(Part.Circle(V(7.5, 25, 0), V(0, 0, 1), 0.9), math.radians(0), math.radians(48.189685)), False)
sketch9.addGeometry(Part.ArcOfCircle(Part.Circle(V(7.5, 25, 0), V(0, 0, 1), 0.9), math.radians(-48.189685), math.radians(0)), False)
sketch9.addGeometry(Part.ArcOfCircle(Part.Circle(V(7.5, 25, 0), V(0, 0, 1), 0.9), math.radians(-131.810315), math.radians(-48.189685)), False)
sketch9.addGeometry(Part.ArcOfCircle(Part.Circle(V(7.5, 25, 0), V(0, 0, 1), 0.9), math.radians(131.810315), math.radians(228.189685)), False)
sketch9.addGeometry(Part.ArcOfCircle(Part.Circle(V(7.5, 25, 0), V(0, 0, 1), 0.9), math.radians(48.189685), math.radians(131.810315)), False)
sketch9.addConstraint(Sketcher.Constraint("Tangent", 0, 2, 1, 1))
sketch9.addConstraint(Sketcher.Constraint("Tangent", 1, 2, 2, 1))
sketch9.addConstraint(Sketcher.Constraint("Tangent", 2, 2, 3, 1))
sketch9.addConstraint(Sketcher.Constraint("Tangent", 3, 2, 4, 1))
sketch9.addConstraint(Sketcher.Constraint("Tangent", 4, 2, 0, 1))
sketch9.addConstraint(Sketcher.Constraint("Tangent", 5, 1, 6, 2))
sketch9.addConstraint(Sketcher.Constraint("Tangent", 6, 1, 7, 2))
sketch9.addConstraint(Sketcher.Constraint("Tangent", 7, 1, 8, 2))
sketch9.addConstraint(Sketcher.Constraint("Tangent", 8, 1, 9, 2))
sketch9.addConstraint(Sketcher.Constraint("Tangent", 9, 1, 5, 2))
sketch9.addConstraint(Sketcher.Constraint("Coincident", 2, 3, 0, 3))
sketch9.addConstraint(Sketcher.Constraint("Coincident", 5, 3, 0, 3))
sketch9.addConstraint(Sketcher.Constraint("Coincident", 7, 3, 0, 3))
sketch9.addConstraint(Sketcher.Constraint("Horizontal", 9, 3, 1, 2))
sketch9.addConstraint(Sketcher.Constraint("Horizontal", 2, 2, 3, 2))
sketch9.addConstraint(Sketcher.Constraint("Horizontal", 0, 2, 4, 2))
sketch9.addConstraint(Sketcher.Constraint("Horizontal", 1, 2, 5, 1))
sketch9.addConstraint(Sketcher.Constraint("Horizontal", 6, 1, 7, 1))
sketch9.addConstraint(Sketcher.Constraint("Horizontal", 8, 1, 9, 1))
sketch9.addConstraint(Sketcher.Constraint("Vertical", 0, 2, 2, 2))
sketch9.addConstraint(Sketcher.Constraint("Vertical", 2, 2, 6, 1))
sketch9.addConstraint(Sketcher.Constraint("Vertical", 7, 1, 8, 1))
sketch9.addConstraint(Sketcher.Constraint("Radius", 0, 2.2))
sketch9.addConstraint(Sketcher.Constraint("Radius", 5, 0.9))
sketch9.addConstraint(Sketcher.Constraint("DistanceY", -1, 1, 0, 3, 25.0))
sketch9.addConstraint(Sketcher.Constraint("DistanceX", -1, 1, 0, 3, 7.5))
sketch9.addConstraint(Sketcher.Constraint("DistanceX", -1, 1, 0, 2, 8.1))
sketch9.setExpression("Constraints[22]", "Params.sketch9_radius")
sketch9.setExpression("Constraints[23]", "Params.sketch9_radius2")
pad9 = body9.newObject("PartDesign::Pad", "Pad008")
pad9.Profile = sketch9
pad9.setExpression("Length", "Params.pad9_length")
body10 = doc.addObject("PartDesign::Body", "Body009")

# Sketch on XZ plane
sketch10 = body10.newObject("Sketcher::SketchObject", "Sketch009")
sketch10.AttachmentSupport = (doc.getObject("XZ_Plane009"), [""])
sketch10.MapMode = "FlatFace"
sketch10.addGeometry(Part.Circle(V(17.5, 4, 0), V(0, 0, 1), 0.6), False)
sketch10.addConstraint(Sketcher.Constraint("Diameter", 0, 1.2))
sketch10.addConstraint(Sketcher.Constraint("DistanceY", -1, 1, 0, 3, 4.0))
sketch10.addConstraint(Sketcher.Constraint("DistanceX", -1, 1, 0, 3, 17.5))
sketch10.setExpression("Constraints[0]", "Params.sketch10_diameter")
pad10 = body10.newObject("PartDesign::Pad", "Pad009")
pad10.Profile = sketch10
pad10.setExpression("Length", "Params.pad10_length")

doc.recompute()
